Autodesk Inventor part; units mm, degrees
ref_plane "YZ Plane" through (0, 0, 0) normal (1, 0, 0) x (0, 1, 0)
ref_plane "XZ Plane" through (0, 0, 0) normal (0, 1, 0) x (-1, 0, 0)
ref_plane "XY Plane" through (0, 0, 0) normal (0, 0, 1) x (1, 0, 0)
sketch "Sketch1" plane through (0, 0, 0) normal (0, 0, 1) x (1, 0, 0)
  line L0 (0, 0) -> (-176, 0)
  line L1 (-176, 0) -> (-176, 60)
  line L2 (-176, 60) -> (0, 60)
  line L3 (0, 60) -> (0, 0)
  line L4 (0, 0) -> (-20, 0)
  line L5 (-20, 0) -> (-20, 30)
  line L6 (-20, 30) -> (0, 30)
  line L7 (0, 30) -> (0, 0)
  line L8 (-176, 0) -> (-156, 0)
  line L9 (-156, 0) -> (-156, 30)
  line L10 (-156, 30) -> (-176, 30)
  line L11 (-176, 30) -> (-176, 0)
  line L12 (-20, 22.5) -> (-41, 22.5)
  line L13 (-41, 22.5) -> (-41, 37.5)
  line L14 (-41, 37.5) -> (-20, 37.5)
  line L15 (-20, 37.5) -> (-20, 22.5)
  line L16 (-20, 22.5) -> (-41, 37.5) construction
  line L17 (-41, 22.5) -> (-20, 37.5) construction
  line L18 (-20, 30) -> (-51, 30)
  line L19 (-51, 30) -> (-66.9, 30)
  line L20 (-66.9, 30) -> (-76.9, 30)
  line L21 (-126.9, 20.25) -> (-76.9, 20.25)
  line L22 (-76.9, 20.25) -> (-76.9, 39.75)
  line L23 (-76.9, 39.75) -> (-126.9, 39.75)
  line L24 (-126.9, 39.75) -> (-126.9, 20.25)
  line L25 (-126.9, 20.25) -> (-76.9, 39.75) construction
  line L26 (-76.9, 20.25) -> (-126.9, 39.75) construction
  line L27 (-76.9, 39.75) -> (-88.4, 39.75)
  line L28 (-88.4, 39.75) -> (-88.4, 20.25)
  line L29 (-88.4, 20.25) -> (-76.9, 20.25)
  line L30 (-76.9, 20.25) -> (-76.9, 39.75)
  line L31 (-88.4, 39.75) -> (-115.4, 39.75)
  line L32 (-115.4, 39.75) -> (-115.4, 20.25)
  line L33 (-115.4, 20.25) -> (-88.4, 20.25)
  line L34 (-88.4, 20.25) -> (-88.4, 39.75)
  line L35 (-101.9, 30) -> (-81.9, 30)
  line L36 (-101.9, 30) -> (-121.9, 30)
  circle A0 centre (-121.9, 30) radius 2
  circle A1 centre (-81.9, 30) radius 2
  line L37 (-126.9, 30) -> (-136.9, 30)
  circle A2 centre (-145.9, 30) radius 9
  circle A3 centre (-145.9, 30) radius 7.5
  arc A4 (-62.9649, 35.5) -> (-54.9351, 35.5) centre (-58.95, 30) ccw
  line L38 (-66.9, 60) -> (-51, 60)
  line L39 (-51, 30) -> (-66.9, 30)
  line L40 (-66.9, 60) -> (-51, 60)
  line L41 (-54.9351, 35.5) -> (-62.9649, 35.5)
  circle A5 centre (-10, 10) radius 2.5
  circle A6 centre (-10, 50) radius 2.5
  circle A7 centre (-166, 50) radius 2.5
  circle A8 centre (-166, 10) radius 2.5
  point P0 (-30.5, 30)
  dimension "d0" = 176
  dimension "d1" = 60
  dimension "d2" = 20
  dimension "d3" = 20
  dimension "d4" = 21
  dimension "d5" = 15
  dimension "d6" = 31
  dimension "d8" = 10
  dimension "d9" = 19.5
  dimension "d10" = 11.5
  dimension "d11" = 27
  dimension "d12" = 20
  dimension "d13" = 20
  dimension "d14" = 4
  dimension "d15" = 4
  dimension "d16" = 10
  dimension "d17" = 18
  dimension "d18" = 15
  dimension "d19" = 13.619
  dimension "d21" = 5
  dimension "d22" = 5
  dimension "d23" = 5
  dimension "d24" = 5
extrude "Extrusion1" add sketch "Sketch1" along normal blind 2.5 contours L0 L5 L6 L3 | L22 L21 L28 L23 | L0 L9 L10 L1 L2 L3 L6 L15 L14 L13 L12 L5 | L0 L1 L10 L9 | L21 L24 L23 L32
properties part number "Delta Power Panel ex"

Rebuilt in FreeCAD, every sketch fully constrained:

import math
import FreeCAD as App
import Part
import Sketcher
Q = App.Units.Quantity

doc = App.newDocument("Part")
body = doc.addObject("PartDesign::Body", "Body")

# Sketch on XY plane
sketch1 = body.newObject("Sketcher::SketchObject", "Sketch")
sketch1.AttachmentSupport = (doc.getObject("XY_Plane"), [""])
sketch1.MapMode = "FlatFace"
sketch1.addGeometry([
    Part.LineSegment(App.Vector(0, 0, 0), App.Vector(0, 60, 0)),  # 0
    Part.LineSegment(App.Vector(0, 60, 0), App.Vector(-176, 60, 0)),  # 1
    Part.LineSegment(App.Vector(-176, 60, 0), App.Vector(-176, 0, 0)),  # 2
    Part.LineSegment(App.Vector(-176, 0, 0), App.Vector(0, 0, 0)),  # 3
    Part.LineSegment(App.Vector(-20, 22.5, 0), App.Vector(-41, 22.5, 0)),  # 4
    Part.LineSegment(App.Vector(-41, 22.5, 0), App.Vector(-41, 30, 0)),  # 5
    Part.LineSegment(App.Vector(-41, 30, 0), App.Vector(-41, 37.5, 0)),  # 6
    Part.LineSegment(App.Vector(-41, 37.5, 0), App.Vector(-20, 37.5, 0)),  # 7
    Part.LineSegment(App.Vector(-20, 37.5, 0), App.Vector(-20, 22.5, 0)),  # 8
    Part.Circle(App.Vector(-10, 10, 0), App.Vector(0, 0, 1), 2.5),  # 9
    Part.ArcOfCircle(Part.Circle(App.Vector(-59, 30, 0), App.Vector(0, 0, 1), 6.8), math.radians(0), math.radians(54)),  # 10
    Part.ArcOfCircle(Part.Circle(App.Vector(-59, 30, 0), App.Vector(0, 0, 1), 6.8), math.radians(180), math.radians(360)),  # 11
    Part.ArcOfCircle(Part.Circle(App.Vector(-59, 30, 0), App.Vector(0, 0, 1), 6.8), math.radians(126), math.radians(180)),  # 12
    Part.LineSegment(App.Vector(-63, 35.5, 0), App.Vector(-54.9, 35.5, 0)),  # 13
    Part.Circle(App.Vector(-145.9, 30, 0), App.Vector(0, 0, 1), 9),  # 14
    Part.LineSegment(App.Vector(-115.4, 39.8, 0), App.Vector(-88.4, 39.8, 0)),  # 15
    Part.LineSegment(App.Vector(-88.4, 39.8, 0), App.Vector(-88.4, 30, 0)),  # 16
    Part.LineSegment(App.Vector(-88.4, 30, 0), App.Vector(-88.4, 20.2, 0)),  # 17
    Part.LineSegment(App.Vector(-88.4, 20.2, 0), App.Vector(-115.4, 20.2, 0)),  # 18
    Part.LineSegment(App.Vector(-115.4, 20.2, 0), App.Vector(-115.4, 30, 0)),  # 19
    Part.LineSegment(App.Vector(-115.4, 30, 0), App.Vector(-115.4, 39.8, 0)),  # 20
    Part.Circle(App.Vector(-166, 50, 0), App.Vector(0, 0, 1), 2.5),  # 21
    Part.Circle(App.Vector(-10, 50, 0), App.Vector(0, 0, 1), 2.5),  # 22
    Part.Circle(App.Vector(-166, 10, 0), App.Vector(0, 0, 1), 2.5),  # 23
    Part.Circle(App.Vector(-81.9, 30, 0), App.Vector(0, 0, 1), 2),  # 24
    Part.Circle(App.Vector(-121.9, 30, 0), App.Vector(0, 0, 1), 2),  # 25
], False)
sketch1.addConstraint([
    Sketcher.Constraint("Coincident", 0, 2, 1, 1),
    Sketcher.Constraint("Coincident", 1, 2, 2, 1),
    Sketcher.Constraint("Coincident", 2, 2, 3, 1),
    Sketcher.Constraint("Coincident", 3, 2, 0, 1),
    Sketcher.Constraint("Coincident", 4, 2, 5, 1),
    Sketcher.Constraint("Coincident", 5, 2, 6, 1),
    Sketcher.Constraint("Coincident", 6, 2, 7, 1),
    Sketcher.Constraint("Coincident", 7, 2, 8, 1),
    Sketcher.Constraint("Coincident", 8, 2, 4, 1),
    Sketcher.Constraint("Tangent", 10, 1, 11, 2),
    Sketcher.Constraint("Tangent", 11, 1, 12, 2),
    Sketcher.Constraint("Coincident", 12, 1, 13, 1),
    Sketcher.Constraint("Coincident", 13, 2, 10, 2),
    Sketcher.Constraint("Coincident", 15, 2, 16, 1),
    Sketcher.Constraint("Coincident", 16, 2, 17, 1),
    Sketcher.Constraint("Coincident", 17, 2, 18, 1),
    Sketcher.Constraint("Coincident", 18, 2, 19, 1),
    Sketcher.Constraint("Coincident", 19, 2, 20, 1),
    Sketcher.Constraint("Coincident", 20, 2, 15, 1),
    Sketcher.Constraint("Vertical", 0),
    Sketcher.Constraint("Horizontal", 1),
    Sketcher.Constraint("Vertical", 2),
    Sketcher.Constraint("Horizontal", 3),
    Sketcher.Constraint("Horizontal", 4),
    Sketcher.Constraint("Vertical", 5),
    Sketcher.Constraint("Vertical", 6),
    Sketcher.Constraint("Horizontal", 7),
    Sketcher.Constraint("Vertical", 8),
    Sketcher.Constraint("Horizontal", 13),
    Sketcher.Constraint("Horizontal", 15),
    Sketcher.Constraint("Vertical", 16),
    Sketcher.Constraint("Vertical", 17),
    Sketcher.Constraint("Horizontal", 18),
    Sketcher.Constraint("Vertical", 19),
    Sketcher.Constraint("Vertical", 20),
    Sketcher.Constraint("Coincident", 3, 2, -1, 1),
    Sketcher.Constraint("Equal", 10, 11),
    Sketcher.Constraint("Equal", 11, 12),
    Sketcher.Constraint("Equal", 9, 21),
    Sketcher.Constraint("Equal", 21, 22),
    Sketcher.Constraint("Equal", 22, 23),
    Sketcher.Constraint("Equal", 24, 25),
    Sketcher.Constraint("Horizontal", 12, 3, 14, 3),
    Sketcher.Constraint("Horizontal", 21, 3, 22, 3),
    Sketcher.Constraint("Horizontal", 9, 3, 23, 3),
    Sketcher.Constraint("Horizontal", 14, 3, 24, 3),
    Sketcher.Constraint("Horizontal", 24, 3, 25, 3),
    Sketcher.Constraint("Horizontal", 25, 3, 5, 2),
    Sketcher.Constraint("Horizontal", 5, 2, 10, 1),
    Sketcher.Constraint("Horizontal", 10, 1, 11, 1),
    Sketcher.Constraint("Horizontal", 11, 1, 16, 2),
    Sketcher.Constraint("Horizontal", 16, 2, 19, 2),
    Sketcher.Constraint("Vertical", 9, 3, 22, 3),
    Sketcher.Constraint("Vertical", 21, 3, 23, 3),
    Sketcher.Constraint("Equal", 5, 6),
    Sketcher.Constraint("Equal", 16, 17),
    Sketcher.Constraint("Diameter", 9, Q("5 mm")),
    Sketcher.Constraint("Diameter", 14, Q("18 mm")),
    Sketcher.Constraint("Diameter", 24, Q("4 mm")),
    Sketcher.Constraint("DistanceX", 1, 2, 1, 1, Q("176 mm")),
    Sketcher.Constraint("DistanceX", 4, 2, 4, 1, Q("21 mm")),
    Sketcher.Constraint("DistanceX", 15, 1, 15, 2, Q("27 mm")),
    Sketcher.Constraint("DistanceY", 0, 1, 0, 2, Q("60 mm")),
    Sketcher.Constraint("DistanceY", 8, 2, 8, 1, Q("15 mm")),
    Sketcher.Constraint("DistanceX", 9, 3, -1, 1, Q("10 mm")),
    Sketcher.Constraint("DistanceY", -1, 1, 9, 3, Q("10 mm")),
    Sketcher.Constraint("DistanceX", 7, 2, -1, 1, Q("20 mm")),
    Sketcher.Constraint("DistanceY", 9, 3, 10, 3, Q("20 mm")),
    Sketcher.Constraint("DistanceY", 14, 3, 21, 3, Q("20 mm")),
    Sketcher.Constraint("DistanceX", 1, 2, 21, 3, Q("10 mm")),
    Sketcher.Constraint("Radius", 10, Q("6.8095 mm")),
    Sketcher.Constraint("DistanceY", 17, 2, 15, 2, Q("19.5 mm")),
    Sketcher.Constraint("DistanceX", 14, 3, 24, 3, Q("64 mm")),
    Sketcher.Constraint("DistanceX", 14, 3, 25, 3, Q("24 mm")),
    Sketcher.Constraint("DistanceX", 14, 3, -1, 1, Q("145.9 mm")),
    Sketcher.Constraint("DistanceY", -1, 1, 12, 1, Q("35.5 mm")),
    Sketcher.Constraint("DistanceX", 15, 2, -1, 1, Q("88.4 mm")),
    Sketcher.Constraint("DistanceX", 10, 3, -1, 1, Q("58.95 mm")),
])
pad1 = body.newObject("PartDesign::Pad", "Pad")
pad1.Profile = sketch1
pad1.Length = 2.5

doc.recompute()
